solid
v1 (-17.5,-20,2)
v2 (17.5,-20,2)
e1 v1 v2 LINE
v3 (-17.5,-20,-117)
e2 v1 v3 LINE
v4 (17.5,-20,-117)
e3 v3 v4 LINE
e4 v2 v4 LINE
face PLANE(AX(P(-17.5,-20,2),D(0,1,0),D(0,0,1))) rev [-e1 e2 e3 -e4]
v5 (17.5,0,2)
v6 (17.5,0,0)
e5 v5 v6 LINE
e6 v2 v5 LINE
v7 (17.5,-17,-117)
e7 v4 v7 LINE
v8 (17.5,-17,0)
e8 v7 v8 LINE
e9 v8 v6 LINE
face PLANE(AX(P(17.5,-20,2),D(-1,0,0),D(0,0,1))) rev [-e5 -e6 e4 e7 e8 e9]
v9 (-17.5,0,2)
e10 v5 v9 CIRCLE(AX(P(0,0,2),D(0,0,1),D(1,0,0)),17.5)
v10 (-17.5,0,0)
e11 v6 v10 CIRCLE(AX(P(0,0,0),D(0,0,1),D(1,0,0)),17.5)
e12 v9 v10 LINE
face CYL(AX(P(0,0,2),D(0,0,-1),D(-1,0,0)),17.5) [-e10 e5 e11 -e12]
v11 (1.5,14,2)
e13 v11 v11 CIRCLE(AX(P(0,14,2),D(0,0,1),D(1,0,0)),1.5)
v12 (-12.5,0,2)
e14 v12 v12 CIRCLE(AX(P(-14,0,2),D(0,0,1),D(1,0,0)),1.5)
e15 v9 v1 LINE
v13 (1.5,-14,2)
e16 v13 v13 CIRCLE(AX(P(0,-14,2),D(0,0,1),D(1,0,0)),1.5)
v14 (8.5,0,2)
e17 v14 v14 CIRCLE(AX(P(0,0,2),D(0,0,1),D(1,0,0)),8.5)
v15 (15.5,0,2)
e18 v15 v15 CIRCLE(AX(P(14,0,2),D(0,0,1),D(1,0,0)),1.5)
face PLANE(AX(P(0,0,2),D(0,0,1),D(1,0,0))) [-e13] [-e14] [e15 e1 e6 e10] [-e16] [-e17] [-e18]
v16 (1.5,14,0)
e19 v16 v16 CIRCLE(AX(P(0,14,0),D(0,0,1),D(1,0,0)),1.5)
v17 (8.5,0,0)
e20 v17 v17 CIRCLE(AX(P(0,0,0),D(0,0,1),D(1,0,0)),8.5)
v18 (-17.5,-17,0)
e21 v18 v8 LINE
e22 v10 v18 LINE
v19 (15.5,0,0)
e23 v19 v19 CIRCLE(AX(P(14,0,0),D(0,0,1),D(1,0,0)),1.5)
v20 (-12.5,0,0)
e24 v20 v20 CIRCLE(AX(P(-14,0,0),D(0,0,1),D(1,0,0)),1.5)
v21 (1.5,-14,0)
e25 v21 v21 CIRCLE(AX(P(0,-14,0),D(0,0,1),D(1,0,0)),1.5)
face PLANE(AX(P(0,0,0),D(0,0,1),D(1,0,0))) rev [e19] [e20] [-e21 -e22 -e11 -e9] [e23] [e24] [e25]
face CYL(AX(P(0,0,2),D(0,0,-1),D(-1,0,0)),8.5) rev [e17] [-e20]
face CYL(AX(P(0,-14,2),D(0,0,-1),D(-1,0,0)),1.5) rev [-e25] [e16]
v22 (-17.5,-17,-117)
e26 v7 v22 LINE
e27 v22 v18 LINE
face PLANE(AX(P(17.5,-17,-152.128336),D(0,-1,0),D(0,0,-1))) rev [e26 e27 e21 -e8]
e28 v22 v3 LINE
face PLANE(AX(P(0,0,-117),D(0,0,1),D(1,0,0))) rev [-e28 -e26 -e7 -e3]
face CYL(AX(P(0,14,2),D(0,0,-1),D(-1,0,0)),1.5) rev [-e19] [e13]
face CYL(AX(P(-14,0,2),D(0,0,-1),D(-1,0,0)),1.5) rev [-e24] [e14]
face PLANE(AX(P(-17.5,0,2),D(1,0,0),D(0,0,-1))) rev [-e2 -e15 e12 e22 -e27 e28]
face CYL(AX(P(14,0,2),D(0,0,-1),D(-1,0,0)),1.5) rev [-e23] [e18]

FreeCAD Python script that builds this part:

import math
import FreeCAD as App
import Part
import Sketcher

V = App.Vector


def add_polygon(sketch, points):
    """Adds a closed chain of lines whose ends are joined by coincident constraints."""
    first, n = sketch.GeometryCount, len(points)
    for a, b in zip(points, points[1:] + points[:1]):
        sketch.addGeometry(Part.LineSegment(App.Vector(*a, 0), App.Vector(*b, 0)), False)
    for i in range(n):
        sketch.addConstraint(Sketcher.Constraint("Coincident", first + i, 2, first + (i + 1) % n, 1))

doc = App.newDocument("Part")
body = doc.addObject("PartDesign::Body", "Body")

sketch1 = body.newObject("Sketcher::SketchObject", "Sketch")
sketch1.AttachmentSupport = (doc.getObject("XY_Plane"), [""])
sketch1.MapMode = "FlatFace"
sketch1.addGeometry([
    Part.LineSegment(V(-17.5, 0, 0), V(-17.5, -20, 0)),
    Part.LineSegment(V(-17.5, -20, 0), V(17.5, -20, 0)),
    Part.LineSegment(V(17.5, -20, 0), V(17.5, 0, 0)),
    Part.ArcOfCircle(Part.Circle(V(0, 0, 0), V(0, 0, 1), 17.5), math.radians(0), math.radians(180)),
    Part.Circle(V(0, -14, 0), V(0, 0, 1), 1.5),
    Part.Circle(V(-14, 0, 0), V(0, 0, 1), 1.5),
    Part.Circle(V(0, 0, 0), V(0, 0, 1), 8.5),
    Part.Circle(V(14, 0, 0), V(0, 0, 1), 1.5),
    Part.Circle(V(0, 14, 0), V(0, 0, 1), 1.5),
], False)
sketch1.addConstraint([
    Sketcher.Constraint("Coincident", 0, 2, 1, 1),
    Sketcher.Constraint("Coincident", 1, 2, 2, 1),
    Sketcher.Constraint("Tangent", 2, 2, 3, 1),
    Sketcher.Constraint("Tangent", 3, 2, 0, 1),
    Sketcher.Constraint("Vertical", 0),
    Sketcher.Constraint("Horizontal", 1),
    Sketcher.Constraint("Vertical", 2),
    Sketcher.Constraint("Coincident", 3, 3, -1, 1),
    Sketcher.Constraint("Coincident", 6, 3, -1, 1),
    Sketcher.Constraint("Equal", 4, 5),
    Sketcher.Constraint("Equal", 5, 7),
    Sketcher.Constraint("Equal", 7, 8),
    Sketcher.Constraint("Symmetric", 5, 3, 7, 3, -1, 1),
    Sketcher.Constraint("Symmetric", 4, 3, 8, 3, -1, 1),
    Sketcher.Constraint("PointOnObject", 4, 3, -2),
    Sketcher.Constraint("PointOnObject", 5, 3, -1),
    Sketcher.Constraint("Diameter", 4, 3.0),
    Sketcher.Constraint("Diameter", 6, 17.0),
    Sketcher.Constraint("Radius", 3, 17.5),
    Sketcher.Constraint("DistanceY", 0, 2, 0, 1, 20.0),
    Sketcher.Constraint("DistanceY", 4, 3, -1, 1, 14.0),
    Sketcher.Constraint("DistanceX", 5, 3, -1, 1, 14.0),
])
pad1 = body.newObject("PartDesign::Pad", "Pad")
pad1.Profile = sketch1
pad1.Length = 2

sketch2 = body.newObject("Sketcher::SketchObject", "Sketch001")
sketch2.AttachmentSupport = (doc.getObject("XY_Plane"), [""])
sketch2.MapMode = "FlatFace"
add_polygon(sketch2, [(17.5, -17), (17.5, -20), (-17.5, -20), (-17.5, -17)])
sketch2.addConstraint([
    Sketcher.Constraint("Vertical", 0),
    Sketcher.Constraint("Horizontal", 1),
    Sketcher.Constraint("Vertical", 2),
    Sketcher.Constraint("Horizontal", 3),
    Sketcher.Constraint("DistanceX", 1, 2, 1, 1, 35.0),
    Sketcher.Constraint("DistanceY", 0, 2, 0, 1, 3.0),
    Sketcher.Constraint("DistanceY", 0, 2, -1, 1, 20.0),
    Sketcher.Constraint("DistanceX", -1, 1, 0, 2, 17.5),
])
pad2 = body.newObject("PartDesign::Pad", "Pad001")
pad2.Profile = sketch2
pad2.Length = 117
pad2.Reversed = True

doc.recompute()
